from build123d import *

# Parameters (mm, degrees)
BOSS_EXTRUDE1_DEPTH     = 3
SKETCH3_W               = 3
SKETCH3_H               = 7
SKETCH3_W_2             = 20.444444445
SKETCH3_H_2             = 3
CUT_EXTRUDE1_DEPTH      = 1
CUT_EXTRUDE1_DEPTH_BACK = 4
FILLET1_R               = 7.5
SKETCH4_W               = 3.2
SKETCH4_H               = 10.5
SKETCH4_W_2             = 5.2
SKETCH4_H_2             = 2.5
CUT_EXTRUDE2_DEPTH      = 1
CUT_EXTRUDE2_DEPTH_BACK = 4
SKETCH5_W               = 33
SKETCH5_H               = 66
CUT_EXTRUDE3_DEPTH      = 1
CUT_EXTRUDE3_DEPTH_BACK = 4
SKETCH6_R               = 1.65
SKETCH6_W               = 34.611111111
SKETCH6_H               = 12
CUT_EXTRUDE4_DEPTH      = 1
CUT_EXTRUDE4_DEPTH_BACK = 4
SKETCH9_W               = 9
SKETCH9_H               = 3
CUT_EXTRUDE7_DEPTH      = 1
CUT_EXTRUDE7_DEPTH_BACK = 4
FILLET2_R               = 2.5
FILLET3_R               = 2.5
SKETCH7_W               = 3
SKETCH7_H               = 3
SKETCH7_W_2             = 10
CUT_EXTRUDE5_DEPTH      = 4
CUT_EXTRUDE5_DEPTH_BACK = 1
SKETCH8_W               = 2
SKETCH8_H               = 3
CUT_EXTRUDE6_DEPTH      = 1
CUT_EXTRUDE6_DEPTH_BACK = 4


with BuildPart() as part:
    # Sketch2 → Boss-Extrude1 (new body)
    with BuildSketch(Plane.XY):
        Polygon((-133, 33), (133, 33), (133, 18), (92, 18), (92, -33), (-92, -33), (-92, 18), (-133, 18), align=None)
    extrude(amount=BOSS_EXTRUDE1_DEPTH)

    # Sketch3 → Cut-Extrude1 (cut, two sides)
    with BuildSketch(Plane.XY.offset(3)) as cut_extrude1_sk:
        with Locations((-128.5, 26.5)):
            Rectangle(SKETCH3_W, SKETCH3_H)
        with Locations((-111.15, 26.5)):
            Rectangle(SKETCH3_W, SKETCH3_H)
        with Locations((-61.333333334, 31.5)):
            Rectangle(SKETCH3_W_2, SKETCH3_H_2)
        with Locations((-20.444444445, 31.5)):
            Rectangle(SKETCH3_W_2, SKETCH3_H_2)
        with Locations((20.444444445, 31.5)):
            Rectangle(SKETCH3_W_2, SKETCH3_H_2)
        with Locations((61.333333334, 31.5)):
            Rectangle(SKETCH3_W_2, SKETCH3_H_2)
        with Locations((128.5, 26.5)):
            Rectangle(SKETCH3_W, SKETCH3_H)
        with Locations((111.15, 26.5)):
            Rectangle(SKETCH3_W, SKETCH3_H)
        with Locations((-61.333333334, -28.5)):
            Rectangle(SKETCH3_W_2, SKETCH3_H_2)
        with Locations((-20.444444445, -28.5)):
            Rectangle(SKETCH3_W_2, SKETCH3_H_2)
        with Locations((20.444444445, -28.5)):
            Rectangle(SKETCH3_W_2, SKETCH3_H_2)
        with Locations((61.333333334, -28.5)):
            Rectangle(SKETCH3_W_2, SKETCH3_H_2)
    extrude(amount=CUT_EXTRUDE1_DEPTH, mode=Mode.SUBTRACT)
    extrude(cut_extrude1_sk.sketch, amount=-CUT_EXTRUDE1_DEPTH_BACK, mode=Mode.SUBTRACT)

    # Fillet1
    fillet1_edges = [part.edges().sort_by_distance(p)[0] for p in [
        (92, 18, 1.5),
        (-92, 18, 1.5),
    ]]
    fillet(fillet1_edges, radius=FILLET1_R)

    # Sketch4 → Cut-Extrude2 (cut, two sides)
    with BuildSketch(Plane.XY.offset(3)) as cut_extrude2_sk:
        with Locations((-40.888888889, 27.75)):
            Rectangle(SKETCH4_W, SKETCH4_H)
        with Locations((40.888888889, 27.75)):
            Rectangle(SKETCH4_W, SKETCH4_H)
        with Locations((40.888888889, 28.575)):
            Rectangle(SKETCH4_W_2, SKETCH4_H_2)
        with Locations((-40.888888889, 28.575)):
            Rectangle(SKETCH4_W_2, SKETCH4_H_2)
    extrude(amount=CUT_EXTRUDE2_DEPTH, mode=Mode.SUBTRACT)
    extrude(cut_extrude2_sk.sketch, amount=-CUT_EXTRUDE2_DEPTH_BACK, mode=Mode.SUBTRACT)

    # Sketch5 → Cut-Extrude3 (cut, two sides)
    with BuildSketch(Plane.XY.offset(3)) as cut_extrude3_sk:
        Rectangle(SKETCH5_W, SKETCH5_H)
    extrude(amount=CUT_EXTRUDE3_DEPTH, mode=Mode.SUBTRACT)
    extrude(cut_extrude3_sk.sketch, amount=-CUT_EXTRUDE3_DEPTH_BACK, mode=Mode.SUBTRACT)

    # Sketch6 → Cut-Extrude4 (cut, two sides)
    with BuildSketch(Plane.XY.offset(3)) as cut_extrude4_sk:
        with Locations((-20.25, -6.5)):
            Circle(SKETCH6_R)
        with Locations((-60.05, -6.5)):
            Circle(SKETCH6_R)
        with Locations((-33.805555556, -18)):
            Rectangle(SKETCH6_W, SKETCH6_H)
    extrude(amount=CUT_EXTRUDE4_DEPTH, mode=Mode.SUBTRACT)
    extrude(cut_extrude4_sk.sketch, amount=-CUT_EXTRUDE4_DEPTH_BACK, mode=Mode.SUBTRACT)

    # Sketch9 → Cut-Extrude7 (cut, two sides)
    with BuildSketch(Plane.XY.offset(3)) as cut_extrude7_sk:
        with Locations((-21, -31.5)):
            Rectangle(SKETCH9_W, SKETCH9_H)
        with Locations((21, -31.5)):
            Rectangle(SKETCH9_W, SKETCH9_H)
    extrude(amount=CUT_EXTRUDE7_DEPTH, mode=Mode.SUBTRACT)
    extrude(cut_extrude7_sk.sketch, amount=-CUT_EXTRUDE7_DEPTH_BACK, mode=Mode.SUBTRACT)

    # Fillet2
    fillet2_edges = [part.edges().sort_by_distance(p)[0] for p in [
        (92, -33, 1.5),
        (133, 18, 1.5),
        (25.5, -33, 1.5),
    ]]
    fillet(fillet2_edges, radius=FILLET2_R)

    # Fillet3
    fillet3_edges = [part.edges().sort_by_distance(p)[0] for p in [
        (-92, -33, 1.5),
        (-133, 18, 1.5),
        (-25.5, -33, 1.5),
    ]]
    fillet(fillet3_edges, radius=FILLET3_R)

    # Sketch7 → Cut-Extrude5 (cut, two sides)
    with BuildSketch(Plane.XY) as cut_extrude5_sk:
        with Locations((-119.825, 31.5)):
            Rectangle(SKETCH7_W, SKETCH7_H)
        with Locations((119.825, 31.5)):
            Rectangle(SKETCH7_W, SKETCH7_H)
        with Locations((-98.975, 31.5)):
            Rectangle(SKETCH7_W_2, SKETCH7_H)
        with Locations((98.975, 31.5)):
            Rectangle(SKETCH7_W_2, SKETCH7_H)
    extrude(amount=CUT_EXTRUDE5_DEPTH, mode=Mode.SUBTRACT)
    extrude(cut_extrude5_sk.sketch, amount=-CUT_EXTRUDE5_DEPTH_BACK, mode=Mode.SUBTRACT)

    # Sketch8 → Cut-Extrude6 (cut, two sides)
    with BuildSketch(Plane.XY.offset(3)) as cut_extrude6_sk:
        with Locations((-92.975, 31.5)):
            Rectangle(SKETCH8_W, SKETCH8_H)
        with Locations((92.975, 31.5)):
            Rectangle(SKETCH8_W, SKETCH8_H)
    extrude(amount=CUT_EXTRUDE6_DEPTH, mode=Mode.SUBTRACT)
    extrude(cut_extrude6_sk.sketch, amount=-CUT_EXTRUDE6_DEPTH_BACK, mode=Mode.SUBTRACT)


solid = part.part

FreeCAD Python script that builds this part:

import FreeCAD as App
import Part
import Sketcher
from FreeCAD import Vector
Q = App.Units.Quantity


def edges_at(feature, points):
    """Names of the edges that pass closest to the given points."""
    edges = feature.Shape.Edges
    near = lambda p: min(range(len(edges)), key=lambda i: edges[i].distToShape(Part.Vertex(*p))[0])
    return sorted({f"Edge{near(p) + 1}" for p in points})

doc = App.newDocument("Part")
params = doc.addObject("Spreadsheet::Sheet", "Params")
for row, (alias, value) in enumerate([
    ("sketch1_width", "266 mm"),
    ("sketch1_width2", "41 mm"),
    ("sketch1_height", "15 mm"),
    ("sketch1_height2", "51 mm"),
    ("pad1_length", "3 mm"),
    ("sketch2_width", "3 mm"),
    ("sketch2_height", "7 mm"),
    ("fillet_radius", "7.5 mm"),
    ("sketch3_width", "1 mm"),
    ("sketch3_width2", "3.2 mm"),
    ("sketch3_height", "2.5 mm"),
    ("sketch4_width", "33 mm"),
    ("sketch4_height", "66 mm"),
    ("sketch5_diameter", "3.3 mm"),
    ("sketch5_height", "12 mm"),
    ("sketch6_width", "9 mm"),
    ("sketch6_height", "3 mm"),
    ("fillet2_radius", "2.5 mm"),
    ("fillet3_radius", "2.5 mm"),
    ("sketch7_width", "3 mm"),
    ("sketch7_width2", "10 mm"),
    ("sketch8_width", "2 mm"),
    ("sketch8_height", "3 mm"),
], start=1):
    params.set(f"A{row}", alias)
    params.set(f"B{row}", "=" + value)
    params.setAlias(f"B{row}", alias)

body = doc.addObject("PartDesign::Body", "Body")
body.AllowCompound = True

sketch1 = body.newObject("Sketcher::SketchObject", "Sketch")
sketch1.AttachmentSupport = (doc.getObject("XY_Plane"), [""])
sketch1.MapMode = "FlatFace"
sketch1.addGeometry([
    Part.LineSegment(Vector(133, 33, 0), Vector(-133, 33, 0)),
    Part.LineSegment(Vector(-133, 33, 0), Vector(-133, 18, 0)),
    Part.LineSegment(Vector(-133, 18, 0), Vector(-92, 18, 0)),
    Part.LineSegment(Vector(-92, 18, 0), Vector(-92, -33, 0)),
    Part.LineSegment(Vector(-92, -33, 0), Vector(92, -33, 0)),
    Part.LineSegment(Vector(92, -33, 0), Vector(92, 18, 0)),
    Part.LineSegment(Vector(92, 18, 0), Vector(133, 18, 0)),
    Part.LineSegment(Vector(133, 18, 0), Vector(133, 33, 0)),
], False)
sketch1.addConstraint([
    Sketcher.Constraint("Coincident", 0, 2, 1, 1),
    Sketcher.Constraint("Coincident", 1, 2, 2, 1),
    Sketcher.Constraint("Coincident", 2, 2, 3, 1),
    Sketcher.Constraint("Coincident", 3, 2, 4, 1),
    Sketcher.Constraint("Coincident", 4, 2, 5, 1),
    Sketcher.Constraint("Coincident", 5, 2, 6, 1),
    Sketcher.Constraint("Coincident", 6, 2, 7, 1),
    Sketcher.Constraint("Coincident", 7, 2, 0, 1),
    Sketcher.Constraint("Horizontal", 0),
    Sketcher.Constraint("Vertical", 1),
    Sketcher.Constraint("Horizontal", 2),
    Sketcher.Constraint("Vertical", 3),
    Sketcher.Constraint("Horizontal", 4),
    Sketcher.Constraint("Vertical", 5),
    Sketcher.Constraint("Horizontal", 6),
    Sketcher.Constraint("Vertical", 7),
    Sketcher.Constraint("Symmetric", 2, 2, 5, 2, -2),
    Sketcher.Constraint("Equal", 2, 6),
    Sketcher.Constraint("DistanceX", 0, 2, 0, 1, Q("266 mm")),
    Sketcher.Constraint("DistanceX", 2, 1, 2, 2, Q("41 mm")),
    Sketcher.Constraint("DistanceY", 1, 2, 1, 1, Q("15 mm")),
    Sketcher.Constraint("DistanceY", 3, 2, 3, 1, Q("51 mm")),
    Sketcher.Constraint("DistanceY", -1, 1, 0, 2, Q("33 mm")),
])
sketch1.setExpression("Constraints[18]", "Params.sketch1_width")
sketch1.setExpression("Constraints[19]", "Params.sketch1_width2")
sketch1.setExpression("Constraints[20]", "Params.sketch1_height")
sketch1.setExpression("Constraints[21]", "Params.sketch1_height2")
pad1 = body.newObject("PartDesign::Pad", "Pad")
pad1.Profile = sketch1
pad1.setExpression("Length", "Params.pad1_length")

sketch2 = body.newObject("Sketcher::SketchObject", "Sketch001")
sketch2.AttachmentSupport = (doc.getObject("XY_Plane"), [""])
sketch2.MapMode = "FlatFace"
sketch2.AttachmentOffset = App.Placement(Vector(0, 0, 3), App.Rotation())
sketch2.addGeometry([
    Part.LineSegment(Vector(-130, 30, 0), Vector(-130, 23, 0)),
    Part.LineSegment(Vector(-130, 23, 0), Vector(-127, 23, 0)),
    Part.LineSegment(Vector(-127, 23, 0), Vector(-127, 30, 0)),
    Part.LineSegment(Vector(-127, 30, 0), Vector(-130, 30, 0)),
    Part.LineSegment(Vector(-112.7, 30, 0), Vector(-112.7, 23, 0)),
    Part.LineSegment(Vector(-112.7, 23, 0), Vector(-109.7, 23, 0)),
    Part.LineSegment(Vector(-109.7, 23, 0), Vector(-109.7, 30, 0)),
    Part.LineSegment(Vector(-109.7, 30, 0), Vector(-112.7, 30, 0)),
    Part.LineSegment(Vector(-71.6, 33, 0), Vector(-71.6, 30, 0)),
    Part.LineSegment(Vector(-71.6, 30, 0), Vector(-51.1, 30, 0)),
    Part.LineSegment(Vector(-51.1, 30, 0), Vector(-51.1, 33, 0)),
    Part.LineSegment(Vector(-51.1, 33, 0), Vector(-71.6, 33, 0)),
    Part.LineSegment(Vector(-30.7, 33, 0), Vector(-30.7, 30, 0)),
    Part.LineSegment(Vector(-30.7, 30, 0), Vector(-10.2, 30, 0)),
    Part.LineSegment(Vector(-10.2, 30, 0), Vector(-10.2, 33, 0)),
    Part.LineSegment(Vector(-10.2, 33, 0), Vector(-30.7, 33, 0)),
    Part.LineSegment(Vector(10.2, 33, 0), Vector(10.2, 30, 0)),
    Part.LineSegment(Vector(10.2, 30, 0), Vector(30.7, 30, 0)),
    Part.LineSegment(Vector(30.7, 30, 0), Vector(30.7, 33, 0)),
    Part.LineSegment(Vector(30.7, 33, 0), Vector(10.2, 33, 0)),
    Part.LineSegment(Vector(51.1, 33, 0), Vector(51.1, 30, 0)),
    Part.LineSegment(Vector(51.1, 30, 0), Vector(71.6, 30, 0)),
    Part.LineSegment(Vector(71.6, 30, 0), Vector(71.6, 33, 0)),
    Part.LineSegment(Vector(71.6, 33, 0), Vector(51.1, 33, 0)),
    Part.LineSegment(Vector(127, 30, 0), Vector(127, 23, 0)),
    Part.LineSegment(Vector(127, 23, 0), Vector(130, 23, 0)),
    Part.LineSegment(Vector(130, 23, 0), Vector(130, 30, 0)),
    Part.LineSegment(Vector(130, 30, 0), Vector(127, 30, 0)),
    Part.LineSegment(Vector(109.7, 30, 0), Vector(109.7, 23, 0)),
    Part.LineSegment(Vector(109.7, 23, 0), Vector(112.7, 23, 0)),
    Part.LineSegment(Vector(112.7, 23, 0), Vector(112.7, 30, 0)),
    Part.LineSegment(Vector(112.7, 30, 0), Vector(109.7, 30, 0)),
    Part.LineSegment(Vector(-71.6, -27, 0), Vector(-71.6, -30, 0)),
    Part.LineSegment(Vector(-71.6, -30, 0), Vector(-51.1, -30, 0)),
    Part.LineSegment(Vector(-51.1, -30, 0), Vector(-51.1, -27, 0)),
    Part.LineSegment(Vector(-51.1, -27, 0), Vector(-71.6, -27, 0)),
    Part.LineSegment(Vector(-30.7, -27, 0), Vector(-30.7, -30, 0)),
    Part.LineSegment(Vector(-30.7, -30, 0), Vector(-10.2, -30, 0)),
    Part.LineSegment(Vector(-10.2, -30, 0), Vector(-10.2, -27, 0)),
    Part.LineSegment(Vector(-10.2, -27, 0), Vector(-30.7, -27, 0)),
    Part.LineSegment(Vector(10.2, -27, 0), Vector(10.2, -30, 0)),
    Part.LineSegment(Vector(10.2, -30, 0), Vector(30.7, -30, 0)),
    Part.LineSegment(Vector(30.7, -30, 0), Vector(30.7, -27, 0)),
    Part.LineSegment(Vector(30.7, -27, 0), Vector(10.2, -27, 0)),
    Part.LineSegment(Vector(51.1, -27, 0), Vector(51.1, -30, 0)),
    Part.LineSegment(Vector(51.1, -30, 0), Vector(71.6, -30, 0)),
    Part.LineSegment(Vector(71.6, -30, 0), Vector(71.6, -27, 0)),
    Part.LineSegment(Vector(71.6, -27, 0), Vector(51.1, -27, 0)),
], False)
sketch2.addConstraint([
    Sketcher.Constraint("Coincident", 0, 2, 1, 1),
    Sketcher.Constraint("Coincident", 1, 2, 2, 1),
    Sketcher.Constraint("Coincident", 2, 2, 3, 1),
    Sketcher.Constraint("Coincident", 3, 2, 0, 1),
    Sketcher.Constraint("Coincident", 4, 2, 5, 1),
    Sketcher.Constraint("Coincident", 5, 2, 6, 1),
    Sketcher.Constraint("Coincident", 6, 2, 7, 1),
    Sketcher.Constraint("Coincident", 7, 2, 4, 1),
    Sketcher.Constraint("Coincident", 8, 2, 9, 1),
    Sketcher.Constraint("Coincident", 9, 2, 10, 1),
    Sketcher.Constraint("Coincident", 10, 2, 11, 1),
    Sketcher.Constraint("Coincident", 11, 2, 8, 1),
    Sketcher.Constraint("Coincident", 12, 2, 13, 1),
    Sketcher.Constraint("Coincident", 13, 2, 14, 1),
    Sketcher.Constraint("Coincident", 14, 2, 15, 1),
    Sketcher.Constraint("Coincident", 15, 2, 12, 1),
    Sketcher.Constraint("Coincident", 16, 2, 17, 1),
    Sketcher.Constraint("Coincident", 17, 2, 18, 1),
    Sketcher.Constraint("Coincident", 18, 2, 19, 1),
    Sketcher.Constraint("Coincident", 19, 2, 16, 1),
    Sketcher.Constraint("Coincident", 20, 2, 21, 1),
    Sketcher.Constraint("Coincident", 21, 2, 22, 1),
    Sketcher.Constraint("Coincident", 22, 2, 23, 1),
    Sketcher.Constraint("Coincident", 23, 2, 20, 1),
    Sketcher.Constraint("Coincident", 24, 2, 25, 1),
    Sketcher.Constraint("Coincident", 25, 2, 26, 1),
    Sketcher.Constraint("Coincident", 26, 2, 27, 1),
    Sketcher.Constraint("Coincident", 27, 2, 24, 1),
    Sketcher.Constraint("Coincident", 28, 2, 29, 1),
    Sketcher.Constraint("Coincident", 29, 2, 30, 1),
    Sketcher.Constraint("Coincident", 30, 2, 31, 1),
    Sketcher.Constraint("Coincident", 31, 2, 28, 1),
    Sketcher.Constraint("Coincident", 32, 2, 33, 1),
    Sketcher.Constraint("Coincident", 33, 2, 34, 1),
    Sketcher.Constraint("Coincident", 34, 2, 35, 1),
    Sketcher.Constraint("Coincident", 35, 2, 32, 1),
    Sketcher.Constraint("Coincident", 36, 2, 37, 1),
    Sketcher.Constraint("Coincident", 37, 2, 38, 1),
    Sketcher.Constraint("Coincident", 38, 2, 39, 1),
    Sketcher.Constraint("Coincident", 39, 2, 36, 1),
    Sketcher.Constraint("Coincident", 40, 2, 41, 1),
    Sketcher.Constraint("Coincident", 41, 2, 42, 1),
    Sketcher.Constraint("Coincident", 42, 2, 43, 1),
    Sketcher.Constraint("Coincident", 43, 2, 40, 1),
    Sketcher.Constraint("Coincident", 44, 2, 45, 1),
    Sketcher.Constraint("Coincident", 45, 2, 46, 1),
    Sketcher.Constraint("Coincident", 46, 2, 47, 1),
    Sketcher.Constraint("Coincident", 47, 2, 44, 1),
    Sketcher.Constraint("Vertical", 0),
    Sketcher.Constraint("Horizontal", 1),
    Sketcher.Constraint("Vertical", 2),
    Sketcher.Constraint("Horizontal", 3),
    Sketcher.Constraint("Vertical", 4),
    Sketcher.Constraint("Horizontal", 5),
    Sketcher.Constraint("Vertical", 6),
    Sketcher.Constraint("Horizontal", 7),
    Sketcher.Constraint("Vertical", 8),
    Sketcher.Constraint("Horizontal", 9),
    Sketcher.Constraint("Vertical", 10),
    Sketcher.Constraint("Horizontal", 11),
    Sketcher.Constraint("Vertical", 12),
    Sketcher.Constraint("Horizontal", 13),
    Sketcher.Constraint("Vertical", 14),
    Sketcher.Constraint("Horizontal", 15),
    Sketcher.Constraint("Vertical", 16),
    Sketcher.Constraint("Horizontal", 17),
    Sketcher.Constraint("Vertical", 18),
    Sketcher.Constraint("Horizontal", 19),
    Sketcher.Constraint("Vertical", 20),
    Sketcher.Constraint("Horizontal", 21),
    Sketcher.Constraint("Vertical", 22),
    Sketcher.Constraint("Horizontal", 23),
    Sketcher.Constraint("Vertical", 24),
    Sketcher.Constraint("Horizontal", 25),
    Sketcher.Constraint("Vertical", 26),
    Sketcher.Constraint("Horizontal", 27),
    Sketcher.Constraint("Vertical", 28),
    Sketcher.Constraint("Horizontal", 29),
    Sketcher.Constraint("Vertical", 30),
    Sketcher.Constraint("Horizontal", 31),
    Sketcher.Constraint("Vertical", 32),
    Sketcher.Constraint("Horizontal", 33),
    Sketcher.Constraint("Vertical", 34),
    Sketcher.Constraint("Horizontal", 35),
    Sketcher.Constraint("Vertical", 36),
    Sketcher.Constraint("Horizontal", 37),
    Sketcher.Constraint("Vertical", 38),
    Sketcher.Constraint("Horizontal", 39),
    Sketcher.Constraint("Vertical", 40),
    Sketcher.Constraint("Horizontal", 41),
    Sketcher.Constraint("Vertical", 42),
    Sketcher.Constraint("Horizontal", 43),
    Sketcher.Constraint("Vertical", 44),
    Sketcher.Constraint("Horizontal", 45),
    Sketcher.Constraint("Vertical", 46),
    Sketcher.Constraint("Horizontal", 47),
    Sketcher.Constraint("Symmetric", 21, 2, 32, 2, -1, 1),
    Sketcher.Constraint("Symmetric", 17, 2, 36, 2, -1, 1),
    Sketcher.Constraint("Symmetric", 13, 2, 40, 2, -1, 1),
    Sketcher.Constraint("Symmetric", 9, 2, 44, 2, -1, 1),
    Sketcher.Constraint("Symmetric", 13, 2, 16, 2, -2),
    Sketcher.Constraint("Symmetric", 15, 2, 18, 2, -2),
    Sketcher.Constraint("Symmetric", 9, 2, 20, 2, -2),
    Sketcher.Constraint("Symmetric", 11, 2, 22, 2, -2),
    Sketcher.Constraint("Symmetric", 1, 2, 24, 2, -2),
    Sketcher.Constraint("Symmetric", 3, 2, 26, 2, -2),
    Sketcher.Constraint("Symmetric", 5, 2, 28, 2, -2),
    Sketcher.Constraint("Symmetric", 7, 2, 30, 2, -2),
    Sketcher.Constraint("Symmetric", 39, 2, 42, 2, -2),
    Sketcher.Constraint("Symmetric", 35, 2, 46, 2, -2),
    Sketcher.Constraint("Horizontal", 1, 2, 4, 2),
    Sketcher.Constraint("Horizontal", 3, 2, 6, 2),
    Sketcher.Constraint("Horizontal", 7, 2, 8, 2),
    Sketcher.Constraint("Horizontal", 9, 2, 12, 2),
    Sketcher.Constraint("Horizontal", 11, 2, 14, 2),
    Sketcher.Constraint("Horizontal", 35, 2, 38, 2),
    Sketcher.Constraint("Vertical", 10, 2, 33, 2),
    Sketcher.Constraint("Vertical", 14, 2, 37, 2),
    Sketcher.Constraint("Equal", 3, 5),
    Sketcher.Constraint("Equal", 11, 13),
    Sketcher.Constraint("Equal", 31, 8),
    Sketcher.Constraint("Equal", 22, 32),
    Sketcher.Constraint("DistanceX", 1, 1, 1, 2, Q("3 mm")),
    Sketcher.Constraint("DistanceY", 0, 2, 0, 1, Q("7 mm")),
    Sketcher.Constraint("DistanceX", 0, 2, -1, 1, Q("130 mm")),
    Sketcher.Constraint("DistanceY", -1, 1, 0, 2, Q("23 mm")),
    Sketcher.Constraint("DistanceX", 4, 2, -1, 1, Q("112.65 mm")),
    Sketcher.Constraint("DistanceX", 9, 1, 9, 2, Q("20.444444 mm")),
    Sketcher.Constraint("DistanceX", 9, 2, -1, 1, Q("51.111111 mm")),
    Sketcher.Constraint("DistanceX", 8, 2, 12, 2, Q("40.888889 mm")),
])
sketch2.setExpression("Constraints[122]", "Params.sketch2_width")
sketch2.setExpression("Constraints[123]", "Params.sketch2_height")
pocket1 = body.newObject("PartDesign::Pocket", "Pocket")
pocket1.Profile = sketch2
pocket1.Type = "ThroughAll"
pocket1.Midplane = True
doc.recompute()

fillet = body.newObject("PartDesign::Fillet", "Fillet")
fillet.Base = (pocket1, edges_at(pocket1, [(92, 18, 1.5), (-92, 18, 1.5)]))
fillet.setExpression("Radius", "Params.fillet_radius")

sketch3 = body.newObject("Sketcher::SketchObject", "Sketch002")
sketch3.AttachmentSupport = (doc.getObject("XY_Plane"), [""])
sketch3.MapMode = "FlatFace"
sketch3.AttachmentOffset = App.Placement(Vector(0, 0, 3), App.Rotation())
sketch3.addGeometry([
    Part.LineSegment(Vector(-42.5, 27.3, 0), Vector(-42.5, 22.5, 0)),
    Part.LineSegment(Vector(-42.5, 22.5, 0), Vector(-39.3, 22.5, 0)),
    Part.LineSegment(Vector(-39.3, 22.5, 0), Vector(-39.3, 27.3, 0)),
    Part.LineSegment(Vector(-39.3, 27.3, 0), Vector(-38.3, 27.3, 0)),
    Part.LineSegment(Vector(-38.3, 27.3, 0), Vector(-38.3, 29.8, 0)),
    Part.LineSegment(Vector(-38.3, 29.8, 0), Vector(-39.3, 29.8, 0)),
    Part.LineSegment(Vector(-39.3, 29.8, 0), Vector(-39.3, 33, 0)),
    Part.LineSegment(Vector(-39.3, 33, 0), Vector(-42.5, 33, 0)),
    Part.LineSegment(Vector(-42.5, 33, 0), Vector(-42.5, 29.8, 0)),
    Part.LineSegment(Vector(-42.5, 29.8, 0), Vector(-43.5, 29.8, 0)),
    Part.LineSegment(Vector(-43.5, 29.8, 0), Vector(-43.5, 27.3, 0)),
    Part.LineSegment(Vector(-43.5, 27.3, 0), Vector(-42.5, 27.3, 0)),
    Part.LineSegment(Vector(39.3, 27.3, 0), Vector(39.3, 22.5, 0)),
    Part.LineSegment(Vector(39.3, 22.5, 0), Vector(42.5, 22.5, 0)),
    Part.LineSegment(Vector(42.5, 22.5, 0), Vector(42.5, 27.3, 0)),
    Part.LineSegment(Vector(42.5, 27.3, 0), Vector(43.5, 27.3, 0)),
    Part.LineSegment(Vector(43.5, 27.3, 0), Vector(43.5, 29.8, 0)),
    Part.LineSegment(Vector(43.5, 29.8, 0), Vector(42.5, 29.8, 0)),
    Part.LineSegment(Vector(42.5, 29.8, 0), Vector(42.5, 33, 0)),
    Part.LineSegment(Vector(42.5, 33, 0), Vector(39.3, 33, 0)),
    Part.LineSegment(Vector(39.3, 33, 0), Vector(39.3, 29.8, 0)),
    Part.LineSegment(Vector(39.3, 29.8, 0), Vector(38.3, 29.8, 0)),
    Part.LineSegment(Vector(38.3, 29.8, 0), Vector(38.3, 27.3, 0)),
    Part.LineSegment(Vector(38.3, 27.3, 0), Vector(39.3, 27.3, 0)),
], False)
sketch3.addConstraint([
    Sketcher.Constraint("Coincident", 0, 2, 1, 1),
    Sketcher.Constraint("Coincident", 1, 2, 2, 1),
    Sketcher.Constraint("Coincident", 2, 2, 3, 1),
    Sketcher.Constraint("Coincident", 3, 2, 4, 1),
    Sketcher.Constraint("Coincident", 4, 2, 5, 1),
    Sketcher.Constraint("Coincident", 5, 2, 6, 1),
    Sketcher.Constraint("Coincident", 6, 2, 7, 1),
    Sketcher.Constraint("Coincident", 7, 2, 8, 1),
    Sketcher.Constraint("Coincident", 8, 2, 9, 1),
    Sketcher.Constraint("Coincident", 9, 2, 10, 1),
    Sketcher.Constraint("Coincident", 10, 2, 11, 1),
    Sketcher.Constraint("Coincident", 11, 2, 0, 1),
    Sketcher.Constraint("Coincident", 12, 2, 13, 1),
    Sketcher.Constraint("Coincident", 13, 2, 14, 1),
    Sketcher.Constraint("Coincident", 14, 2, 15, 1),
    Sketcher.Constraint("Coincident", 15, 2, 16, 1),
    Sketcher.Constraint("Coincident", 16, 2, 17, 1),
    Sketcher.Constraint("Coincident", 17, 2, 18, 1),
    Sketcher.Constraint("Coincident", 18, 2, 19, 1),
    Sketcher.Constraint("Coincident", 19, 2, 20, 1),
    Sketcher.Constraint("Coincident", 20, 2, 21, 1),
    Sketcher.Constraint("Coincident", 21, 2, 22, 1),
    Sketcher.Constraint("Coincident", 22, 2, 23, 1),
    Sketcher.Constraint("Coincident", 23, 2, 12, 1),
    Sketcher.Constraint("Vertical", 0),
    Sketcher.Constraint("Horizontal", 1),
    Sketcher.Constraint("Vertical", 2),
    Sketcher.Constraint("Horizontal", 3),
    Sketcher.Constraint("Vertical", 4),
    Sketcher.Constraint("Horizontal", 5),
    Sketcher.Constraint("Vertical", 6),
    Sketcher.Constraint("Horizontal", 7),
    Sketcher.Constraint("Vertical", 8),
    Sketcher.Constraint("Horizontal", 9),
    Sketcher.Constraint("Vertical", 10),
    Sketcher.Constraint("Horizontal", 11),
    Sketcher.Constraint("Vertical", 12),
    Sketcher.Constraint("Horizontal", 13),
    Sketcher.Constraint("Vertical", 14),
    Sketcher.Constraint("Horizontal", 15),
    Sketcher.Constraint("Vertical", 16),
    Sketcher.Constraint("Horizontal", 17),
    Sketcher.Constraint("Vertical", 18),
    Sketcher.Constraint("Horizontal", 19),
    Sketcher.Constraint("Vertical", 20),
    Sketcher.Constraint("Horizontal", 21),
    Sketcher.Constraint("Vertical", 22),
    Sketcher.Constraint("Horizontal", 23),
    Sketcher.Constraint("Symmetric", 1, 2, 12, 2, -2),
    Sketcher.Constraint("Symmetric", 11, 2, 14, 2, -2),
    Sketcher.Constraint("Symmetric", 9, 2, 16, 2, -2),
    Sketcher.Constraint("Symmetric", 7, 2, 18, 2, -2),
    Sketcher.Constraint("Symmetric", 5, 2, 20, 2, -2),
    Sketcher.Constraint("Symmetric", 3, 2, 22, 2, -2),
    Sketcher.Constraint("Horizontal", 5, 2, 8, 2),
    Sketcher.Constraint("Horizontal", 3, 2, 10, 2),
    Sketcher.Constraint("Vertical", 2, 2, 5, 2),
    Sketcher.Constraint("Vertical", 0, 2, 7, 2),
    Sketcher.Constraint("Equal", 5, 9),
    Sketcher.Constraint("DistanceX", 3, 1, 3, 2, Q("1 mm")),
    Sketcher.Constraint("DistanceX", 1, 1, 1, 2, Q("3.2 mm")),
    Sketcher.Constraint("DistanceY", 4, 1, 4, 2, Q("2.5 mm")),
    Sketcher.Constraint("DistanceY", -1, 1, 6, 2, Q("33 mm")),
    Sketcher.Constraint("DistanceY", -1, 1, 0, 2, Q("22.5 mm")),
    Sketcher.Constraint("DistanceY", 0, 2, 0, 1, Q("4.825 mm")),
    Sketcher.Constraint("DistanceX", 0, 2, -1, 1, Q("42.488889 mm")),
])
sketch3.setExpression("Constraints[59]", "Params.sketch3_width")
sketch3.setExpression("Constraints[60]", "Params.sketch3_width2")
sketch3.setExpression("Constraints[61]", "Params.sketch3_height")
pocket2 = body.newObject("PartDesign::Pocket", "Pocket001")
pocket2.Profile = sketch3
pocket2.Type = "ThroughAll"
pocket2.Midplane = True

sketch4 = body.newObject("Sketcher::SketchObject", "Sketch003")
sketch4.AttachmentSupport = (doc.getObject("XY_Plane"), [""])
sketch4.MapMode = "FlatFace"
sketch4.AttachmentOffset = App.Placement(Vector(0, 0, 3), App.Rotation())
sketch4.addGeometry([
    Part.LineSegment(Vector(-16, 33, 0), Vector(-16, -33, 0)),
    Part.LineSegment(Vector(-16, -33, 0), Vector(16, -33, 0)),
    Part.LineSegment(Vector(16, -33, 0), Vector(16, 33, 0)),
    Part.LineSegment(Vector(16, 33, 0), Vector(-16, 33, 0)),
], False)
sketch4.addConstraint([
    Sketcher.Constraint("Coincident", 0, 2, 1, 1),
    Sketcher.Constraint("Coincident", 1, 2, 2, 1),
    Sketcher.Constraint("Coincident", 2, 2, 3, 1),
    Sketcher.Constraint("Coincident", 3, 2, 0, 1),
    Sketcher.Constraint("Vertical", 0),
    Sketcher.Constraint("Horizontal", 1),
    Sketcher.Constraint("Vertical", 2),
    Sketcher.Constraint("Horizontal", 3),
    Sketcher.Constraint("Symmetric", 0, 2, 2, 2, -1, 1),
    Sketcher.Constraint("DistanceX", 1, 1, 1, 2, Q("33 mm")),
    Sketcher.Constraint("DistanceY", 0, 2, 0, 1, Q("66 mm")),
])
sketch4.setExpression("Constraints[9]", "Params.sketch4_width")
sketch4.setExpression("Constraints[10]", "Params.sketch4_height")
pocket3 = body.newObject("PartDesign::Pocket", "Pocket002")
pocket3.Profile = sketch4
pocket3.Type = "ThroughAll"
pocket3.Midplane = True

sketch5 = body.newObject("Sketcher::SketchObject", "Sketch004")
sketch5.AttachmentSupport = (doc.getObject("XY_Plane"), [""])
sketch5.MapMode = "FlatFace"
sketch5.AttachmentOffset = App.Placement(Vector(0, 0, 3), App.Rotation())
sketch5.addGeometry([
    Part.Circle(Vector(-20.2, -6.5, 0), Vector(0, 0, 1), 1.6),
    Part.Circle(Vector(-60, -6.5, 0), Vector(0, 0, 1), 1.6),
    Part.LineSegment(Vector(-51.1, -12, 0), Vector(-51.1, -24, 0)),
    Part.LineSegment(Vector(-51.1, -24, 0), Vector(-16.5, -24, 0)),
    Part.LineSegment(Vector(-16.5, -24, 0), Vector(-16.5, -12, 0)),
    Part.LineSegment(Vector(-16.5, -12, 0), Vector(-51.1, -12, 0)),
], False)
sketch5.addConstraint([
    Sketcher.Constraint("Coincident", 2, 2, 3, 1),
    Sketcher.Constraint("Coincident", 3, 2, 4, 1),
    Sketcher.Constraint("Coincident", 4, 2, 5, 1),
    Sketcher.Constraint("Coincident", 5, 2, 2, 1),
    Sketcher.Constraint("Vertical", 2),
    Sketcher.Constraint("Horizontal", 3),
    Sketcher.Constraint("Vertical", 4),
    Sketcher.Constraint("Horizontal", 5),
    Sketcher.Constraint("Equal", 0, 1),
    Sketcher.Constraint("Horizontal", 0, 3, 1, 3),
    Sketcher.Constraint("Diameter", 0, Q("3.3 mm")),
    Sketcher.Constraint("DistanceY", 2, 2, 2, 1, Q("12 mm")),
    Sketcher.Constraint("DistanceY", 2, 2, -1, 1, Q("24 mm")),
    Sketcher.Constraint("DistanceY", 0, 3, -1, 1, Q("6.5 mm")),
    Sketcher.Constraint("DistanceX", 3, 2, -1, 1, Q("16.5 mm")),
    Sketcher.Constraint("DistanceX", 1, 3, 0, 3, Q("39.8 mm")),
    Sketcher.Constraint("DistanceX", 0, 3, -1, 1, Q("20.25 mm")),
    Sketcher.Constraint("DistanceX", 3, 1, 3, 2, Q("34.611111 mm")),
])
sketch5.setExpression("Constraints[10]", "Params.sketch5_diameter")
sketch5.setExpression("Constraints[11]", "Params.sketch5_height")
pocket4 = body.newObject("PartDesign::Pocket", "Pocket003")
pocket4.Profile = sketch5
pocket4.Type = "ThroughAll"
pocket4.Midplane = True

sketch6 = body.newObject("Sketcher::SketchObject", "Sketch005")
sketch6.AttachmentSupport = (doc.getObject("XY_Plane"), [""])
sketch6.MapMode = "FlatFace"
sketch6.AttachmentOffset = App.Placement(Vector(0, 0, 3), App.Rotation())
sketch6.addGeometry([
    Part.LineSegment(Vector(-25.5, -30, 0), Vector(-25.5, -33, 0)),
    Part.LineSegment(Vector(-25.5, -33, 0), Vector(-16.5, -33, 0)),
    Part.LineSegment(Vector(-16.5, -33, 0), Vector(-16.5, -30, 0)),
    Part.LineSegment(Vector(-16.5, -30, 0), Vector(-25.5, -30, 0)),
    Part.LineSegment(Vector(16.5, -30, 0), Vector(16.5, -33, 0)),
    Part.LineSegment(Vector(16.5, -33, 0), Vector(25.5, -33, 0)),
    Part.LineSegment(Vector(25.5, -33, 0), Vector(25.5, -30, 0)),
    Part.LineSegment(Vector(25.5, -30, 0), Vector(16.5, -30, 0)),
], False)
sketch6.addConstraint([
    Sketcher.Constraint("Coincident", 0, 2, 1, 1),
    Sketcher.Constraint("Coincident", 1, 2, 2, 1),
    Sketcher.Constraint("Coincident", 2, 2, 3, 1),
    Sketcher.Constraint("Coincident", 3, 2, 0, 1),
    Sketcher.Constraint("Coincident", 4, 2, 5, 1),
    Sketcher.Constraint("Coincident", 5, 2, 6, 1),
    Sketcher.Constraint("Coincident", 6, 2, 7, 1),
    Sketcher.Constraint("Coincident", 7, 2, 4, 1),
    Sketcher.Constraint("Vertical", 0),
    Sketcher.Constraint("Horizontal", 1),
    Sketcher.Constraint("Vertical", 2),
    Sketcher.Constraint("Horizontal", 3),
    Sketcher.Constraint("Vertical", 4),
    Sketcher.Constraint("Horizontal", 5),
    Sketcher.Constraint("Vertical", 6),
    Sketcher.Constraint("Horizontal", 7),
    Sketcher.Constraint("Symmetric", 1, 2, 4, 2, -2),
    Sketcher.Constraint("Symmetric", 3, 2, 6, 2, -2),
    Sketcher.Constraint("DistanceX", 1, 1, 1, 2, Q("9 mm")),
    Sketcher.Constraint("DistanceY", 0, 2, 0, 1, Q("3 mm")),
    Sketcher.Constraint("DistanceY", 0, 2, -1, 1, Q("33 mm")),
    Sketcher.Constraint("DistanceX", 1, 2, 4, 2, Q("33 mm")),
])
sketch6.setExpression("Constraints[18]", "Params.sketch6_width")
sketch6.setExpression("Constraints[19]", "Params.sketch6_height")
pocket5 = body.newObject("PartDesign::Pocket", "Pocket004")
pocket5.Profile = sketch6
pocket5.Type = "ThroughAll"
pocket5.Midplane = True
doc.recompute()

fillet2 = body.newObject("PartDesign::Fillet", "Fillet001")
fillet2.Base = (pocket5, edges_at(pocket5, [(92, -33, 1.5), (133, 18, 1.5), (25.5, -33, 1.5)]))
fillet2.setExpression("Radius", "Params.fillet2_radius")
doc.recompute()

fillet3 = body.newObject("PartDesign::Fillet", "Fillet002")
fillet3.Base = (fillet2, edges_at(fillet2, [(-92, -33, 1.5), (-133, 18, 1.5), (-25.5, -33, 1.5)]))
fillet3.setExpression("Radius", "Params.fillet3_radius")

sketch7 = body.newObject("Sketcher::SketchObject", "Sketch006")
sketch7.AttachmentSupport = (doc.getObject("XY_Plane"), [""])
sketch7.MapMode = "FlatFace"
sketch7.addGeometry([
    Part.LineSegment(Vector(-121.3, 33, 0), Vector(-121.3, 30, 0)),
    Part.LineSegment(Vector(-121.3, 30, 0), Vector(-118.3, 30, 0)),
    Part.LineSegment(Vector(-118.3, 30, 0), Vector(-118.3, 33, 0)),
    Part.LineSegment(Vector(-118.3, 33, 0), Vector(-121.3, 33, 0)),
    Part.LineSegment(Vector(118.3, 33, 0), Vector(118.3, 30, 0)),
    Part.LineSegment(Vector(118.3, 30, 0), Vector(121.3, 30, 0)),
    Part.LineSegment(Vector(121.3, 30, 0), Vector(121.3, 33, 0)),
    Part.LineSegment(Vector(121.3, 33, 0), Vector(118.3, 33, 0)),
    Part.LineSegment(Vector(-104, 33, 0), Vector(-104, 30, 0)),
    Part.LineSegment(Vector(-104, 30, 0), Vector(-94, 30, 0)),
    Part.LineSegment(Vector(-94, 30, 0), Vector(-94, 33, 0)),
    Part.LineSegment(Vector(-94, 33, 0), Vector(-104, 33, 0)),
    Part.LineSegment(Vector(94, 33, 0), Vector(94, 30, 0)),
    Part.LineSegment(Vector(94, 30, 0), Vector(104, 30, 0)),
    Part.LineSegment(Vector(104, 30, 0), Vector(104, 33, 0)),
    Part.LineSegment(Vector(104, 33, 0), Vector(94, 33, 0)),
], False)
sketch7.addConstraint([
    Sketcher.Constraint("Coincident", 0, 2, 1, 1),
    Sketcher.Constraint("Coincident", 1, 2, 2, 1),
    Sketcher.Constraint("Coincident", 2, 2, 3, 1),
    Sketcher.Constraint("Coincident", 3, 2, 0, 1),
    Sketcher.Constraint("Coincident", 4, 2, 5, 1),
    Sketcher.Constraint("Coincident", 5, 2, 6, 1),
    Sketcher.Constraint("Coincident", 6, 2, 7, 1),
    Sketcher.Constraint("Coincident", 7, 2, 4, 1),
    Sketcher.Constraint("Coincident", 8, 2, 9, 1),
    Sketcher.Constraint("Coincident", 9, 2, 10, 1),
    Sketcher.Constraint("Coincident", 10, 2, 11, 1),
    Sketcher.Constraint("Coincident", 11, 2, 8, 1),
    Sketcher.Constraint("Coincident", 12, 2, 13, 1),
    Sketcher.Constraint("Coincident", 13, 2, 14, 1),
    Sketcher.Constraint("Coincident", 14, 2, 15, 1),
    Sketcher.Constraint("Coincident", 15, 2, 12, 1),
    Sketcher.Constraint("Vertical", 0),
    Sketcher.Constraint("Horizontal", 1),
    Sketcher.Constraint("Vertical", 2),
    Sketcher.Constraint("Horizontal", 3),
    Sketcher.Constraint("Vertical", 4),
    Sketcher.Constraint("Horizontal", 5),
    Sketcher.Constraint("Vertical", 6),
    Sketcher.Constraint("Horizontal", 7),
    Sketcher.Constraint("Vertical", 8),
    Sketcher.Constraint("Horizontal", 9),
    Sketcher.Constraint("Vertical", 10),
    Sketcher.Constraint("Horizontal", 11),
    Sketcher.Constraint("Vertical", 12),
    Sketcher.Constraint("Horizontal", 13),
    Sketcher.Constraint("Vertical", 14),
    Sketcher.Constraint("Horizontal", 15),
    Sketcher.Constraint("Symmetric", 1, 2, 4, 2, -2),
    Sketcher.Constraint("Symmetric", 3, 2, 6, 2, -2),
    Sketcher.Constraint("Symmetric", 9, 2, 12, 2, -2),
    Sketcher.Constraint("Symmetric", 11, 2, 14, 2, -2),
    Sketcher.Constraint("Horizontal", 5, 2, 8, 2),
    Sketcher.Constraint("Horizontal", 7, 2, 10, 2),
    Sketcher.Constraint("Equal", 7, 0),
    Sketcher.Constraint("DistanceX", 1, 1, 1, 2, Q("3 mm")),
    Sketcher.Constraint("DistanceX", 9, 1, 9, 2, Q("10 mm")),
    Sketcher.Constraint("DistanceY", -1, 1, 0, 2, Q("30 mm")),
    Sketcher.Constraint("DistanceX", 8, 2, 4, 2, Q("222.3 mm")),
    Sketcher.Constraint("DistanceX", 1, 2, 4, 2, Q("236.65 mm")),
])
sketch7.setExpression("Constraints[39]", "Params.sketch7_width")
sketch7.setExpression("Constraints[40]", "Params.sketch7_width2")
pocket6 = body.newObject("PartDesign::Pocket", "Pocket005")
pocket6.Profile = sketch7
pocket6.Type = "ThroughAll"
pocket6.Midplane = True

sketch8 = body.newObject("Sketcher::SketchObject", "Sketch007")
sketch8.AttachmentSupport = (doc.getObject("XY_Plane"), [""])
sketch8.MapMode = "FlatFace"
sketch8.AttachmentOffset = App.Placement(Vector(0, 0, 3), App.Rotation())
sketch8.addGeometry([
    Part.LineSegment(Vector(-94, 33, 0), Vector(-94, 30, 0)),
    Part.LineSegment(Vector(-94, 30, 0), Vector(-92, 30, 0)),
    Part.LineSegment(Vector(-92, 30, 0), Vector(-92, 33, 0)),
    Part.LineSegment(Vector(-92, 33, 0), Vector(-94, 33, 0)),
    Part.LineSegment(Vector(92, 33, 0), Vector(92, 30, 0)),
    Part.LineSegment(Vector(92, 30, 0), Vector(94, 30, 0)),
    Part.LineSegment(Vector(94, 30, 0), Vector(94, 33, 0)),
    Part.LineSegment(Vector(94, 33, 0), Vector(92, 33, 0)),
], False)
sketch8.addConstraint([
    Sketcher.Constraint("Coincident", 0, 2, 1, 1),
    Sketcher.Constraint("Coincident", 1, 2, 2, 1),
    Sketcher.Constraint("Coincident", 2, 2, 3, 1),
    Sketcher.Constraint("Coincident", 3, 2, 0, 1),
    Sketcher.Constraint("Coincident", 4, 2, 5, 1),
    Sketcher.Constraint("Coincident", 5, 2, 6, 1),
    Sketcher.Constraint("Coincident", 6, 2, 7, 1),
    Sketcher.Constraint("Coincident", 7, 2, 4, 1),
    Sketcher.Constraint("Vertical", 0),
    Sketcher.Constraint("Horizontal", 1),
    Sketcher.Constraint("Vertical", 2),
    Sketcher.Constraint("Horizontal", 3),
    Sketcher.Constraint("Vertical", 4),
    Sketcher.Constraint("Horizontal", 5),
    Sketcher.Constraint("Vertical", 6),
    Sketcher.Constraint("Horizontal", 7),
    Sketcher.Constraint("Symmetric", 1, 2, 4, 2, -2),
    Sketcher.Constraint("Symmetric", 3, 2, 6, 2, -2),
    Sketcher.Constraint("DistanceX", 1, 1, 1, 2, Q("2 mm")),
    Sketcher.Constraint("DistanceY", 0, 2, 0, 1, Q("3 mm")),
    Sketcher.Constraint("DistanceY", -1, 1, 0, 2, Q("30 mm")),
    Sketcher.Constraint("DistanceX", 1, 2, 4, 2, Q("183.95 mm")),
])
sketch8.setExpression("Constraints[18]", "Params.sketch8_width")
sketch8.setExpression("Constraints[19]", "Params.sketch8_height")
pocket7 = body.newObject("PartDesign::Pocket", "Pocket006")
pocket7.Profile = sketch8
pocket7.Type = "ThroughAll"
pocket7.Midplane = True

doc.recompute()
